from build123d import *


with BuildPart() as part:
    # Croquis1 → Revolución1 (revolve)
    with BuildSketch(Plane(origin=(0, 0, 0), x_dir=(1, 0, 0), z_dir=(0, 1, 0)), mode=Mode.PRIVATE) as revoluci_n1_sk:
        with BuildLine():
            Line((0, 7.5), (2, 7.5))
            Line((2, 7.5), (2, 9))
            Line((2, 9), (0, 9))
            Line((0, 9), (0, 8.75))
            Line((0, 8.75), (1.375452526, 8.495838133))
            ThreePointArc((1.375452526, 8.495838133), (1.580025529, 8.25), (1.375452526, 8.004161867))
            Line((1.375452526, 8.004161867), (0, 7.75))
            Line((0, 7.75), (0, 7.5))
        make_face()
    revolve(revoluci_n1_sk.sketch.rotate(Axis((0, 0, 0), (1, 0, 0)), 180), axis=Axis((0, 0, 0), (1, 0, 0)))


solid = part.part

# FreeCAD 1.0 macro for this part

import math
import FreeCAD as App
import Part
import Sketcher
Q = App.Units.Quantity

doc = App.newDocument("Part")
body = doc.addObject("PartDesign::Body", "Body")

sketch1 = body.newObject("Sketcher::SketchObject", "Sketch")
sketch1.AttachmentSupport = (doc.getObject("XZ_Plane"), [""])
sketch1.MapMode = "FlatFace"
sketch1.addGeometry(Part.LineSegment(App.Vector(0, -7.5, 0), App.Vector(2, -7.5, 0)), False)
sketch1.addGeometry(Part.LineSegment(App.Vector(2, -7.5, 0), App.Vector(2, -9, 0)), False)
sketch1.addGeometry(Part.LineSegment(App.Vector(2, -9, 0), App.Vector(0, -9, 0)), False)
sketch1.addGeometry(Part.LineSegment(App.Vector(0, -9, 0), App.Vector(0, -8.75, 0)), False)
sketch1.addGeometry(Part.LineSegment(App.Vector(0, -8.75, 0), App.Vector(1.375453, -8.495838, 0)), False)
sketch1.addGeometry(Part.ArcOfCircle(Part.Circle(App.Vector(1.330026, -8.25, 0), App.Vector(0, 0, 1), 0.25), math.radians(-79.530739), math.radians(79.530739)), False)
sketch1.addGeometry(Part.LineSegment(App.Vector(1.375453, -8.004162, 0), App.Vector(0, -7.75, 0)), False)
sketch1.addGeometry(Part.LineSegment(App.Vector(0, -7.75, 0), App.Vector(0, -7.5, 0)), False)
sketch1.addConstraint(Sketcher.Constraint("Coincident", 0, 2, 1, 1))
sketch1.addConstraint(Sketcher.Constraint("Coincident", 1, 2, 2, 1))
sketch1.addConstraint(Sketcher.Constraint("Coincident", 2, 2, 3, 1))
sketch1.addConstraint(Sketcher.Constraint("Coincident", 3, 2, 4, 1))
sketch1.addConstraint(Sketcher.Constraint("Coincident", 4, 2, 5, 1))
sketch1.addConstraint(Sketcher.Constraint("Coincident", 5, 2, 6, 1))
sketch1.addConstraint(Sketcher.Constraint("Coincident", 6, 2, 7, 1))
sketch1.addConstraint(Sketcher.Constraint("Coincident", 7, 2, 0, 1))
sketch1.addConstraint(Sketcher.Constraint("Horizontal", 0))
sketch1.addConstraint(Sketcher.Constraint("Vertical", 1))
sketch1.addConstraint(Sketcher.Constraint("Horizontal", 2))
sketch1.addConstraint(Sketcher.Constraint("Vertical", 3))
sketch1.addConstraint(Sketcher.Constraint("Vertical", 7))
sketch1.addConstraint(Sketcher.Constraint("PointOnObject", 2, 2, -2))
sketch1.addConstraint(Sketcher.Constraint("PointOnObject", 6, 2, -2))
sketch1.addConstraint(Sketcher.Constraint("DistanceX", 0, 1, 0, 2, Q("2 mm")))
sketch1.addConstraint(Sketcher.Constraint("Radius", 5, Q("0.25 mm")))
sketch1.addConstraint(Sketcher.Constraint("DistanceY", 1, 2, 1, 1, Q("1.5 mm")))
sketch1.addConstraint(Sketcher.Constraint("DistanceY", 1, 2, -1, 1, Q("9 mm")))
sketch1.addConstraint(Sketcher.Constraint("DistanceY", 3, 2, 6, 2, Q("1 mm")))
sketch1.addConstraint(Sketcher.Constraint("DistanceY", 3, 1, 3, 2, Q("0.25 mm")))
sketch1.addConstraint(Sketcher.Constraint("DistanceY", 3, 2, 5, 3, Q("0.5 mm")))
sketch1.addConstraint(Sketcher.Constraint("DistanceY", 4, 2, -1, 1, Q("8.495838 mm")))
sketch1.addConstraint(Sketcher.Constraint("DistanceY", 5, 2, -1, 1, Q("8.004162 mm")))
sketch1.addConstraint(Sketcher.Constraint("Distance", 4, Q("1.398738 mm")))
revolution = body.newObject("PartDesign::Revolution", "Revolution")
revolution.Profile = sketch1
revolution.ReferenceAxis = (sketch1, ["H_Axis"])
revolution.Angle = 360

doc.recompute()
